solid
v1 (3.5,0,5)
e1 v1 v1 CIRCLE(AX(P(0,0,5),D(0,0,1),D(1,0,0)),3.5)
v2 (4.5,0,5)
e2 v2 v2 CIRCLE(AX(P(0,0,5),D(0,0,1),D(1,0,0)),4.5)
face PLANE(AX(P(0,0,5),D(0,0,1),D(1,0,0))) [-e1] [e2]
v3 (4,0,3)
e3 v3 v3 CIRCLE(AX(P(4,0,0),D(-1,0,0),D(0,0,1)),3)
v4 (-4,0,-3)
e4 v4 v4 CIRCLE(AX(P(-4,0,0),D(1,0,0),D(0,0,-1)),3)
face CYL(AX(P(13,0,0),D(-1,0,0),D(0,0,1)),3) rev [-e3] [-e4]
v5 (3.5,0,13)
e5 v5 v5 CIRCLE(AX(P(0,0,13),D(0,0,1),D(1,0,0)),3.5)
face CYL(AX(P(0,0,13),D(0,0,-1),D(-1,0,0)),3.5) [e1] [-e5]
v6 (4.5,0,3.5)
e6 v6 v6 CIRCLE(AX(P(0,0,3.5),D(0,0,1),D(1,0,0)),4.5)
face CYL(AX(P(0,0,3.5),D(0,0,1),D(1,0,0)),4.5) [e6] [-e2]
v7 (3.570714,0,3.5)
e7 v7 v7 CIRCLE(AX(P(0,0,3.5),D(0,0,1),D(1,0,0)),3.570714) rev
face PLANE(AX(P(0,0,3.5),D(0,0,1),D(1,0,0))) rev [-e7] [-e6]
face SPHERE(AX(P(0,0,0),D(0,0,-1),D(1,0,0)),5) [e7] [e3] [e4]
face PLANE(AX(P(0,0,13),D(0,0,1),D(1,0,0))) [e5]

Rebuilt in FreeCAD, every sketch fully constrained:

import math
import FreeCAD as App
import Part
import Sketcher
from FreeCAD import Vector

doc = App.newDocument("Part")
body = doc.addObject("PartDesign::Body", "Body")

sketch1 = body.newObject("Sketcher::SketchObject", "Sketch")
sketch1.AttachmentSupport = (doc.getObject("XZ_Plane"), [""])
sketch1.MapMode = "FlatFace"
sketch1.addGeometry(Part.LineSegment(Vector(0, 5, 0), Vector(0, -5, 0)), False)
sketch1.addGeometry(Part.ArcOfCircle(Part.Circle(Vector(0, 0, 0), Vector(0, 0, 1), 5), math.radians(90), math.radians(270)), False)
sketch1.addConstraint(Sketcher.Constraint("Coincident", 0, 1, 1, 1))
sketch1.addConstraint(Sketcher.Constraint("Coincident", 1, 2, 0, 2))
sketch1.addConstraint(Sketcher.Constraint("Vertical", 0))
sketch1.addConstraint(Sketcher.Constraint("Coincident", 1, 3, -1, 1))
sketch1.addConstraint(Sketcher.Constraint("PointOnObject", 0, 1, -2))
sketch1.addConstraint(Sketcher.Constraint("Radius", 1, 5.0))
revolution = body.newObject("PartDesign::Revolution", "Revolution")
revolution.Profile = sketch1
revolution.ReferenceAxis = (sketch1, ["V_Axis"])
revolution.Angle = 360

sketch2 = body.newObject("Sketcher::SketchObject", "Sketch001")
sketch2.AttachmentSupport = (doc.getObject("XY_Plane"), [""])
sketch2.MapMode = "FlatFace"
sketch2.addGeometry(Part.Circle(Vector(0, 0, 0), Vector(0, 0, 1), 3.5), False)
sketch2.addConstraint(Sketcher.Constraint("Coincident", 0, 3, -1, 1))
sketch2.addConstraint(Sketcher.Constraint("Diameter", 0, 7.0))
pad1 = body.newObject("PartDesign::Pad", "Pad")
pad1.Profile = sketch2
pad1.Length = 13

sketch3 = body.newObject("Sketcher::SketchObject", "Sketch002")
sketch3.AttachmentSupport = (doc.getObject("YZ_Plane"), [""])
sketch3.MapMode = "FlatFace"
sketch3.addGeometry(Part.Circle(Vector(0, 0, 0), Vector(0, 0, 1), 3), False)
sketch3.addConstraint(Sketcher.Constraint("Coincident", 0, 3, -1, 1))
sketch3.addConstraint(Sketcher.Constraint("Diameter", 0, 6.0))
pocket1 = body.newObject("PartDesign::Pocket", "Pocket")
pocket1.Profile = sketch3
pocket1.Type = "ThroughAll"
pocket1.Midplane = True

sketch4 = body.newObject("Sketcher::SketchObject", "Sketch003")
sketch4.AttachmentSupport = (doc.getObject("XY_Plane"), [""])
sketch4.MapMode = "FlatFace"
sketch4.AttachmentOffset = App.Placement(Vector(0, 0, 5), App.Rotation())
sketch4.addGeometry(Part.Circle(Vector(0, 0, 0), Vector(0, 0, 1), 4.5), False)
sketch4.addConstraint(Sketcher.Constraint("Coincident", 0, 3, -1, 1))
sketch4.addConstraint(Sketcher.Constraint("Diameter", 0, 9.0))
pad2 = body.newObject("PartDesign::Pad", "Pad001")
pad2.Profile = sketch4
pad2.Length = 1.5
pad2.Reversed = True

doc.recompute()
